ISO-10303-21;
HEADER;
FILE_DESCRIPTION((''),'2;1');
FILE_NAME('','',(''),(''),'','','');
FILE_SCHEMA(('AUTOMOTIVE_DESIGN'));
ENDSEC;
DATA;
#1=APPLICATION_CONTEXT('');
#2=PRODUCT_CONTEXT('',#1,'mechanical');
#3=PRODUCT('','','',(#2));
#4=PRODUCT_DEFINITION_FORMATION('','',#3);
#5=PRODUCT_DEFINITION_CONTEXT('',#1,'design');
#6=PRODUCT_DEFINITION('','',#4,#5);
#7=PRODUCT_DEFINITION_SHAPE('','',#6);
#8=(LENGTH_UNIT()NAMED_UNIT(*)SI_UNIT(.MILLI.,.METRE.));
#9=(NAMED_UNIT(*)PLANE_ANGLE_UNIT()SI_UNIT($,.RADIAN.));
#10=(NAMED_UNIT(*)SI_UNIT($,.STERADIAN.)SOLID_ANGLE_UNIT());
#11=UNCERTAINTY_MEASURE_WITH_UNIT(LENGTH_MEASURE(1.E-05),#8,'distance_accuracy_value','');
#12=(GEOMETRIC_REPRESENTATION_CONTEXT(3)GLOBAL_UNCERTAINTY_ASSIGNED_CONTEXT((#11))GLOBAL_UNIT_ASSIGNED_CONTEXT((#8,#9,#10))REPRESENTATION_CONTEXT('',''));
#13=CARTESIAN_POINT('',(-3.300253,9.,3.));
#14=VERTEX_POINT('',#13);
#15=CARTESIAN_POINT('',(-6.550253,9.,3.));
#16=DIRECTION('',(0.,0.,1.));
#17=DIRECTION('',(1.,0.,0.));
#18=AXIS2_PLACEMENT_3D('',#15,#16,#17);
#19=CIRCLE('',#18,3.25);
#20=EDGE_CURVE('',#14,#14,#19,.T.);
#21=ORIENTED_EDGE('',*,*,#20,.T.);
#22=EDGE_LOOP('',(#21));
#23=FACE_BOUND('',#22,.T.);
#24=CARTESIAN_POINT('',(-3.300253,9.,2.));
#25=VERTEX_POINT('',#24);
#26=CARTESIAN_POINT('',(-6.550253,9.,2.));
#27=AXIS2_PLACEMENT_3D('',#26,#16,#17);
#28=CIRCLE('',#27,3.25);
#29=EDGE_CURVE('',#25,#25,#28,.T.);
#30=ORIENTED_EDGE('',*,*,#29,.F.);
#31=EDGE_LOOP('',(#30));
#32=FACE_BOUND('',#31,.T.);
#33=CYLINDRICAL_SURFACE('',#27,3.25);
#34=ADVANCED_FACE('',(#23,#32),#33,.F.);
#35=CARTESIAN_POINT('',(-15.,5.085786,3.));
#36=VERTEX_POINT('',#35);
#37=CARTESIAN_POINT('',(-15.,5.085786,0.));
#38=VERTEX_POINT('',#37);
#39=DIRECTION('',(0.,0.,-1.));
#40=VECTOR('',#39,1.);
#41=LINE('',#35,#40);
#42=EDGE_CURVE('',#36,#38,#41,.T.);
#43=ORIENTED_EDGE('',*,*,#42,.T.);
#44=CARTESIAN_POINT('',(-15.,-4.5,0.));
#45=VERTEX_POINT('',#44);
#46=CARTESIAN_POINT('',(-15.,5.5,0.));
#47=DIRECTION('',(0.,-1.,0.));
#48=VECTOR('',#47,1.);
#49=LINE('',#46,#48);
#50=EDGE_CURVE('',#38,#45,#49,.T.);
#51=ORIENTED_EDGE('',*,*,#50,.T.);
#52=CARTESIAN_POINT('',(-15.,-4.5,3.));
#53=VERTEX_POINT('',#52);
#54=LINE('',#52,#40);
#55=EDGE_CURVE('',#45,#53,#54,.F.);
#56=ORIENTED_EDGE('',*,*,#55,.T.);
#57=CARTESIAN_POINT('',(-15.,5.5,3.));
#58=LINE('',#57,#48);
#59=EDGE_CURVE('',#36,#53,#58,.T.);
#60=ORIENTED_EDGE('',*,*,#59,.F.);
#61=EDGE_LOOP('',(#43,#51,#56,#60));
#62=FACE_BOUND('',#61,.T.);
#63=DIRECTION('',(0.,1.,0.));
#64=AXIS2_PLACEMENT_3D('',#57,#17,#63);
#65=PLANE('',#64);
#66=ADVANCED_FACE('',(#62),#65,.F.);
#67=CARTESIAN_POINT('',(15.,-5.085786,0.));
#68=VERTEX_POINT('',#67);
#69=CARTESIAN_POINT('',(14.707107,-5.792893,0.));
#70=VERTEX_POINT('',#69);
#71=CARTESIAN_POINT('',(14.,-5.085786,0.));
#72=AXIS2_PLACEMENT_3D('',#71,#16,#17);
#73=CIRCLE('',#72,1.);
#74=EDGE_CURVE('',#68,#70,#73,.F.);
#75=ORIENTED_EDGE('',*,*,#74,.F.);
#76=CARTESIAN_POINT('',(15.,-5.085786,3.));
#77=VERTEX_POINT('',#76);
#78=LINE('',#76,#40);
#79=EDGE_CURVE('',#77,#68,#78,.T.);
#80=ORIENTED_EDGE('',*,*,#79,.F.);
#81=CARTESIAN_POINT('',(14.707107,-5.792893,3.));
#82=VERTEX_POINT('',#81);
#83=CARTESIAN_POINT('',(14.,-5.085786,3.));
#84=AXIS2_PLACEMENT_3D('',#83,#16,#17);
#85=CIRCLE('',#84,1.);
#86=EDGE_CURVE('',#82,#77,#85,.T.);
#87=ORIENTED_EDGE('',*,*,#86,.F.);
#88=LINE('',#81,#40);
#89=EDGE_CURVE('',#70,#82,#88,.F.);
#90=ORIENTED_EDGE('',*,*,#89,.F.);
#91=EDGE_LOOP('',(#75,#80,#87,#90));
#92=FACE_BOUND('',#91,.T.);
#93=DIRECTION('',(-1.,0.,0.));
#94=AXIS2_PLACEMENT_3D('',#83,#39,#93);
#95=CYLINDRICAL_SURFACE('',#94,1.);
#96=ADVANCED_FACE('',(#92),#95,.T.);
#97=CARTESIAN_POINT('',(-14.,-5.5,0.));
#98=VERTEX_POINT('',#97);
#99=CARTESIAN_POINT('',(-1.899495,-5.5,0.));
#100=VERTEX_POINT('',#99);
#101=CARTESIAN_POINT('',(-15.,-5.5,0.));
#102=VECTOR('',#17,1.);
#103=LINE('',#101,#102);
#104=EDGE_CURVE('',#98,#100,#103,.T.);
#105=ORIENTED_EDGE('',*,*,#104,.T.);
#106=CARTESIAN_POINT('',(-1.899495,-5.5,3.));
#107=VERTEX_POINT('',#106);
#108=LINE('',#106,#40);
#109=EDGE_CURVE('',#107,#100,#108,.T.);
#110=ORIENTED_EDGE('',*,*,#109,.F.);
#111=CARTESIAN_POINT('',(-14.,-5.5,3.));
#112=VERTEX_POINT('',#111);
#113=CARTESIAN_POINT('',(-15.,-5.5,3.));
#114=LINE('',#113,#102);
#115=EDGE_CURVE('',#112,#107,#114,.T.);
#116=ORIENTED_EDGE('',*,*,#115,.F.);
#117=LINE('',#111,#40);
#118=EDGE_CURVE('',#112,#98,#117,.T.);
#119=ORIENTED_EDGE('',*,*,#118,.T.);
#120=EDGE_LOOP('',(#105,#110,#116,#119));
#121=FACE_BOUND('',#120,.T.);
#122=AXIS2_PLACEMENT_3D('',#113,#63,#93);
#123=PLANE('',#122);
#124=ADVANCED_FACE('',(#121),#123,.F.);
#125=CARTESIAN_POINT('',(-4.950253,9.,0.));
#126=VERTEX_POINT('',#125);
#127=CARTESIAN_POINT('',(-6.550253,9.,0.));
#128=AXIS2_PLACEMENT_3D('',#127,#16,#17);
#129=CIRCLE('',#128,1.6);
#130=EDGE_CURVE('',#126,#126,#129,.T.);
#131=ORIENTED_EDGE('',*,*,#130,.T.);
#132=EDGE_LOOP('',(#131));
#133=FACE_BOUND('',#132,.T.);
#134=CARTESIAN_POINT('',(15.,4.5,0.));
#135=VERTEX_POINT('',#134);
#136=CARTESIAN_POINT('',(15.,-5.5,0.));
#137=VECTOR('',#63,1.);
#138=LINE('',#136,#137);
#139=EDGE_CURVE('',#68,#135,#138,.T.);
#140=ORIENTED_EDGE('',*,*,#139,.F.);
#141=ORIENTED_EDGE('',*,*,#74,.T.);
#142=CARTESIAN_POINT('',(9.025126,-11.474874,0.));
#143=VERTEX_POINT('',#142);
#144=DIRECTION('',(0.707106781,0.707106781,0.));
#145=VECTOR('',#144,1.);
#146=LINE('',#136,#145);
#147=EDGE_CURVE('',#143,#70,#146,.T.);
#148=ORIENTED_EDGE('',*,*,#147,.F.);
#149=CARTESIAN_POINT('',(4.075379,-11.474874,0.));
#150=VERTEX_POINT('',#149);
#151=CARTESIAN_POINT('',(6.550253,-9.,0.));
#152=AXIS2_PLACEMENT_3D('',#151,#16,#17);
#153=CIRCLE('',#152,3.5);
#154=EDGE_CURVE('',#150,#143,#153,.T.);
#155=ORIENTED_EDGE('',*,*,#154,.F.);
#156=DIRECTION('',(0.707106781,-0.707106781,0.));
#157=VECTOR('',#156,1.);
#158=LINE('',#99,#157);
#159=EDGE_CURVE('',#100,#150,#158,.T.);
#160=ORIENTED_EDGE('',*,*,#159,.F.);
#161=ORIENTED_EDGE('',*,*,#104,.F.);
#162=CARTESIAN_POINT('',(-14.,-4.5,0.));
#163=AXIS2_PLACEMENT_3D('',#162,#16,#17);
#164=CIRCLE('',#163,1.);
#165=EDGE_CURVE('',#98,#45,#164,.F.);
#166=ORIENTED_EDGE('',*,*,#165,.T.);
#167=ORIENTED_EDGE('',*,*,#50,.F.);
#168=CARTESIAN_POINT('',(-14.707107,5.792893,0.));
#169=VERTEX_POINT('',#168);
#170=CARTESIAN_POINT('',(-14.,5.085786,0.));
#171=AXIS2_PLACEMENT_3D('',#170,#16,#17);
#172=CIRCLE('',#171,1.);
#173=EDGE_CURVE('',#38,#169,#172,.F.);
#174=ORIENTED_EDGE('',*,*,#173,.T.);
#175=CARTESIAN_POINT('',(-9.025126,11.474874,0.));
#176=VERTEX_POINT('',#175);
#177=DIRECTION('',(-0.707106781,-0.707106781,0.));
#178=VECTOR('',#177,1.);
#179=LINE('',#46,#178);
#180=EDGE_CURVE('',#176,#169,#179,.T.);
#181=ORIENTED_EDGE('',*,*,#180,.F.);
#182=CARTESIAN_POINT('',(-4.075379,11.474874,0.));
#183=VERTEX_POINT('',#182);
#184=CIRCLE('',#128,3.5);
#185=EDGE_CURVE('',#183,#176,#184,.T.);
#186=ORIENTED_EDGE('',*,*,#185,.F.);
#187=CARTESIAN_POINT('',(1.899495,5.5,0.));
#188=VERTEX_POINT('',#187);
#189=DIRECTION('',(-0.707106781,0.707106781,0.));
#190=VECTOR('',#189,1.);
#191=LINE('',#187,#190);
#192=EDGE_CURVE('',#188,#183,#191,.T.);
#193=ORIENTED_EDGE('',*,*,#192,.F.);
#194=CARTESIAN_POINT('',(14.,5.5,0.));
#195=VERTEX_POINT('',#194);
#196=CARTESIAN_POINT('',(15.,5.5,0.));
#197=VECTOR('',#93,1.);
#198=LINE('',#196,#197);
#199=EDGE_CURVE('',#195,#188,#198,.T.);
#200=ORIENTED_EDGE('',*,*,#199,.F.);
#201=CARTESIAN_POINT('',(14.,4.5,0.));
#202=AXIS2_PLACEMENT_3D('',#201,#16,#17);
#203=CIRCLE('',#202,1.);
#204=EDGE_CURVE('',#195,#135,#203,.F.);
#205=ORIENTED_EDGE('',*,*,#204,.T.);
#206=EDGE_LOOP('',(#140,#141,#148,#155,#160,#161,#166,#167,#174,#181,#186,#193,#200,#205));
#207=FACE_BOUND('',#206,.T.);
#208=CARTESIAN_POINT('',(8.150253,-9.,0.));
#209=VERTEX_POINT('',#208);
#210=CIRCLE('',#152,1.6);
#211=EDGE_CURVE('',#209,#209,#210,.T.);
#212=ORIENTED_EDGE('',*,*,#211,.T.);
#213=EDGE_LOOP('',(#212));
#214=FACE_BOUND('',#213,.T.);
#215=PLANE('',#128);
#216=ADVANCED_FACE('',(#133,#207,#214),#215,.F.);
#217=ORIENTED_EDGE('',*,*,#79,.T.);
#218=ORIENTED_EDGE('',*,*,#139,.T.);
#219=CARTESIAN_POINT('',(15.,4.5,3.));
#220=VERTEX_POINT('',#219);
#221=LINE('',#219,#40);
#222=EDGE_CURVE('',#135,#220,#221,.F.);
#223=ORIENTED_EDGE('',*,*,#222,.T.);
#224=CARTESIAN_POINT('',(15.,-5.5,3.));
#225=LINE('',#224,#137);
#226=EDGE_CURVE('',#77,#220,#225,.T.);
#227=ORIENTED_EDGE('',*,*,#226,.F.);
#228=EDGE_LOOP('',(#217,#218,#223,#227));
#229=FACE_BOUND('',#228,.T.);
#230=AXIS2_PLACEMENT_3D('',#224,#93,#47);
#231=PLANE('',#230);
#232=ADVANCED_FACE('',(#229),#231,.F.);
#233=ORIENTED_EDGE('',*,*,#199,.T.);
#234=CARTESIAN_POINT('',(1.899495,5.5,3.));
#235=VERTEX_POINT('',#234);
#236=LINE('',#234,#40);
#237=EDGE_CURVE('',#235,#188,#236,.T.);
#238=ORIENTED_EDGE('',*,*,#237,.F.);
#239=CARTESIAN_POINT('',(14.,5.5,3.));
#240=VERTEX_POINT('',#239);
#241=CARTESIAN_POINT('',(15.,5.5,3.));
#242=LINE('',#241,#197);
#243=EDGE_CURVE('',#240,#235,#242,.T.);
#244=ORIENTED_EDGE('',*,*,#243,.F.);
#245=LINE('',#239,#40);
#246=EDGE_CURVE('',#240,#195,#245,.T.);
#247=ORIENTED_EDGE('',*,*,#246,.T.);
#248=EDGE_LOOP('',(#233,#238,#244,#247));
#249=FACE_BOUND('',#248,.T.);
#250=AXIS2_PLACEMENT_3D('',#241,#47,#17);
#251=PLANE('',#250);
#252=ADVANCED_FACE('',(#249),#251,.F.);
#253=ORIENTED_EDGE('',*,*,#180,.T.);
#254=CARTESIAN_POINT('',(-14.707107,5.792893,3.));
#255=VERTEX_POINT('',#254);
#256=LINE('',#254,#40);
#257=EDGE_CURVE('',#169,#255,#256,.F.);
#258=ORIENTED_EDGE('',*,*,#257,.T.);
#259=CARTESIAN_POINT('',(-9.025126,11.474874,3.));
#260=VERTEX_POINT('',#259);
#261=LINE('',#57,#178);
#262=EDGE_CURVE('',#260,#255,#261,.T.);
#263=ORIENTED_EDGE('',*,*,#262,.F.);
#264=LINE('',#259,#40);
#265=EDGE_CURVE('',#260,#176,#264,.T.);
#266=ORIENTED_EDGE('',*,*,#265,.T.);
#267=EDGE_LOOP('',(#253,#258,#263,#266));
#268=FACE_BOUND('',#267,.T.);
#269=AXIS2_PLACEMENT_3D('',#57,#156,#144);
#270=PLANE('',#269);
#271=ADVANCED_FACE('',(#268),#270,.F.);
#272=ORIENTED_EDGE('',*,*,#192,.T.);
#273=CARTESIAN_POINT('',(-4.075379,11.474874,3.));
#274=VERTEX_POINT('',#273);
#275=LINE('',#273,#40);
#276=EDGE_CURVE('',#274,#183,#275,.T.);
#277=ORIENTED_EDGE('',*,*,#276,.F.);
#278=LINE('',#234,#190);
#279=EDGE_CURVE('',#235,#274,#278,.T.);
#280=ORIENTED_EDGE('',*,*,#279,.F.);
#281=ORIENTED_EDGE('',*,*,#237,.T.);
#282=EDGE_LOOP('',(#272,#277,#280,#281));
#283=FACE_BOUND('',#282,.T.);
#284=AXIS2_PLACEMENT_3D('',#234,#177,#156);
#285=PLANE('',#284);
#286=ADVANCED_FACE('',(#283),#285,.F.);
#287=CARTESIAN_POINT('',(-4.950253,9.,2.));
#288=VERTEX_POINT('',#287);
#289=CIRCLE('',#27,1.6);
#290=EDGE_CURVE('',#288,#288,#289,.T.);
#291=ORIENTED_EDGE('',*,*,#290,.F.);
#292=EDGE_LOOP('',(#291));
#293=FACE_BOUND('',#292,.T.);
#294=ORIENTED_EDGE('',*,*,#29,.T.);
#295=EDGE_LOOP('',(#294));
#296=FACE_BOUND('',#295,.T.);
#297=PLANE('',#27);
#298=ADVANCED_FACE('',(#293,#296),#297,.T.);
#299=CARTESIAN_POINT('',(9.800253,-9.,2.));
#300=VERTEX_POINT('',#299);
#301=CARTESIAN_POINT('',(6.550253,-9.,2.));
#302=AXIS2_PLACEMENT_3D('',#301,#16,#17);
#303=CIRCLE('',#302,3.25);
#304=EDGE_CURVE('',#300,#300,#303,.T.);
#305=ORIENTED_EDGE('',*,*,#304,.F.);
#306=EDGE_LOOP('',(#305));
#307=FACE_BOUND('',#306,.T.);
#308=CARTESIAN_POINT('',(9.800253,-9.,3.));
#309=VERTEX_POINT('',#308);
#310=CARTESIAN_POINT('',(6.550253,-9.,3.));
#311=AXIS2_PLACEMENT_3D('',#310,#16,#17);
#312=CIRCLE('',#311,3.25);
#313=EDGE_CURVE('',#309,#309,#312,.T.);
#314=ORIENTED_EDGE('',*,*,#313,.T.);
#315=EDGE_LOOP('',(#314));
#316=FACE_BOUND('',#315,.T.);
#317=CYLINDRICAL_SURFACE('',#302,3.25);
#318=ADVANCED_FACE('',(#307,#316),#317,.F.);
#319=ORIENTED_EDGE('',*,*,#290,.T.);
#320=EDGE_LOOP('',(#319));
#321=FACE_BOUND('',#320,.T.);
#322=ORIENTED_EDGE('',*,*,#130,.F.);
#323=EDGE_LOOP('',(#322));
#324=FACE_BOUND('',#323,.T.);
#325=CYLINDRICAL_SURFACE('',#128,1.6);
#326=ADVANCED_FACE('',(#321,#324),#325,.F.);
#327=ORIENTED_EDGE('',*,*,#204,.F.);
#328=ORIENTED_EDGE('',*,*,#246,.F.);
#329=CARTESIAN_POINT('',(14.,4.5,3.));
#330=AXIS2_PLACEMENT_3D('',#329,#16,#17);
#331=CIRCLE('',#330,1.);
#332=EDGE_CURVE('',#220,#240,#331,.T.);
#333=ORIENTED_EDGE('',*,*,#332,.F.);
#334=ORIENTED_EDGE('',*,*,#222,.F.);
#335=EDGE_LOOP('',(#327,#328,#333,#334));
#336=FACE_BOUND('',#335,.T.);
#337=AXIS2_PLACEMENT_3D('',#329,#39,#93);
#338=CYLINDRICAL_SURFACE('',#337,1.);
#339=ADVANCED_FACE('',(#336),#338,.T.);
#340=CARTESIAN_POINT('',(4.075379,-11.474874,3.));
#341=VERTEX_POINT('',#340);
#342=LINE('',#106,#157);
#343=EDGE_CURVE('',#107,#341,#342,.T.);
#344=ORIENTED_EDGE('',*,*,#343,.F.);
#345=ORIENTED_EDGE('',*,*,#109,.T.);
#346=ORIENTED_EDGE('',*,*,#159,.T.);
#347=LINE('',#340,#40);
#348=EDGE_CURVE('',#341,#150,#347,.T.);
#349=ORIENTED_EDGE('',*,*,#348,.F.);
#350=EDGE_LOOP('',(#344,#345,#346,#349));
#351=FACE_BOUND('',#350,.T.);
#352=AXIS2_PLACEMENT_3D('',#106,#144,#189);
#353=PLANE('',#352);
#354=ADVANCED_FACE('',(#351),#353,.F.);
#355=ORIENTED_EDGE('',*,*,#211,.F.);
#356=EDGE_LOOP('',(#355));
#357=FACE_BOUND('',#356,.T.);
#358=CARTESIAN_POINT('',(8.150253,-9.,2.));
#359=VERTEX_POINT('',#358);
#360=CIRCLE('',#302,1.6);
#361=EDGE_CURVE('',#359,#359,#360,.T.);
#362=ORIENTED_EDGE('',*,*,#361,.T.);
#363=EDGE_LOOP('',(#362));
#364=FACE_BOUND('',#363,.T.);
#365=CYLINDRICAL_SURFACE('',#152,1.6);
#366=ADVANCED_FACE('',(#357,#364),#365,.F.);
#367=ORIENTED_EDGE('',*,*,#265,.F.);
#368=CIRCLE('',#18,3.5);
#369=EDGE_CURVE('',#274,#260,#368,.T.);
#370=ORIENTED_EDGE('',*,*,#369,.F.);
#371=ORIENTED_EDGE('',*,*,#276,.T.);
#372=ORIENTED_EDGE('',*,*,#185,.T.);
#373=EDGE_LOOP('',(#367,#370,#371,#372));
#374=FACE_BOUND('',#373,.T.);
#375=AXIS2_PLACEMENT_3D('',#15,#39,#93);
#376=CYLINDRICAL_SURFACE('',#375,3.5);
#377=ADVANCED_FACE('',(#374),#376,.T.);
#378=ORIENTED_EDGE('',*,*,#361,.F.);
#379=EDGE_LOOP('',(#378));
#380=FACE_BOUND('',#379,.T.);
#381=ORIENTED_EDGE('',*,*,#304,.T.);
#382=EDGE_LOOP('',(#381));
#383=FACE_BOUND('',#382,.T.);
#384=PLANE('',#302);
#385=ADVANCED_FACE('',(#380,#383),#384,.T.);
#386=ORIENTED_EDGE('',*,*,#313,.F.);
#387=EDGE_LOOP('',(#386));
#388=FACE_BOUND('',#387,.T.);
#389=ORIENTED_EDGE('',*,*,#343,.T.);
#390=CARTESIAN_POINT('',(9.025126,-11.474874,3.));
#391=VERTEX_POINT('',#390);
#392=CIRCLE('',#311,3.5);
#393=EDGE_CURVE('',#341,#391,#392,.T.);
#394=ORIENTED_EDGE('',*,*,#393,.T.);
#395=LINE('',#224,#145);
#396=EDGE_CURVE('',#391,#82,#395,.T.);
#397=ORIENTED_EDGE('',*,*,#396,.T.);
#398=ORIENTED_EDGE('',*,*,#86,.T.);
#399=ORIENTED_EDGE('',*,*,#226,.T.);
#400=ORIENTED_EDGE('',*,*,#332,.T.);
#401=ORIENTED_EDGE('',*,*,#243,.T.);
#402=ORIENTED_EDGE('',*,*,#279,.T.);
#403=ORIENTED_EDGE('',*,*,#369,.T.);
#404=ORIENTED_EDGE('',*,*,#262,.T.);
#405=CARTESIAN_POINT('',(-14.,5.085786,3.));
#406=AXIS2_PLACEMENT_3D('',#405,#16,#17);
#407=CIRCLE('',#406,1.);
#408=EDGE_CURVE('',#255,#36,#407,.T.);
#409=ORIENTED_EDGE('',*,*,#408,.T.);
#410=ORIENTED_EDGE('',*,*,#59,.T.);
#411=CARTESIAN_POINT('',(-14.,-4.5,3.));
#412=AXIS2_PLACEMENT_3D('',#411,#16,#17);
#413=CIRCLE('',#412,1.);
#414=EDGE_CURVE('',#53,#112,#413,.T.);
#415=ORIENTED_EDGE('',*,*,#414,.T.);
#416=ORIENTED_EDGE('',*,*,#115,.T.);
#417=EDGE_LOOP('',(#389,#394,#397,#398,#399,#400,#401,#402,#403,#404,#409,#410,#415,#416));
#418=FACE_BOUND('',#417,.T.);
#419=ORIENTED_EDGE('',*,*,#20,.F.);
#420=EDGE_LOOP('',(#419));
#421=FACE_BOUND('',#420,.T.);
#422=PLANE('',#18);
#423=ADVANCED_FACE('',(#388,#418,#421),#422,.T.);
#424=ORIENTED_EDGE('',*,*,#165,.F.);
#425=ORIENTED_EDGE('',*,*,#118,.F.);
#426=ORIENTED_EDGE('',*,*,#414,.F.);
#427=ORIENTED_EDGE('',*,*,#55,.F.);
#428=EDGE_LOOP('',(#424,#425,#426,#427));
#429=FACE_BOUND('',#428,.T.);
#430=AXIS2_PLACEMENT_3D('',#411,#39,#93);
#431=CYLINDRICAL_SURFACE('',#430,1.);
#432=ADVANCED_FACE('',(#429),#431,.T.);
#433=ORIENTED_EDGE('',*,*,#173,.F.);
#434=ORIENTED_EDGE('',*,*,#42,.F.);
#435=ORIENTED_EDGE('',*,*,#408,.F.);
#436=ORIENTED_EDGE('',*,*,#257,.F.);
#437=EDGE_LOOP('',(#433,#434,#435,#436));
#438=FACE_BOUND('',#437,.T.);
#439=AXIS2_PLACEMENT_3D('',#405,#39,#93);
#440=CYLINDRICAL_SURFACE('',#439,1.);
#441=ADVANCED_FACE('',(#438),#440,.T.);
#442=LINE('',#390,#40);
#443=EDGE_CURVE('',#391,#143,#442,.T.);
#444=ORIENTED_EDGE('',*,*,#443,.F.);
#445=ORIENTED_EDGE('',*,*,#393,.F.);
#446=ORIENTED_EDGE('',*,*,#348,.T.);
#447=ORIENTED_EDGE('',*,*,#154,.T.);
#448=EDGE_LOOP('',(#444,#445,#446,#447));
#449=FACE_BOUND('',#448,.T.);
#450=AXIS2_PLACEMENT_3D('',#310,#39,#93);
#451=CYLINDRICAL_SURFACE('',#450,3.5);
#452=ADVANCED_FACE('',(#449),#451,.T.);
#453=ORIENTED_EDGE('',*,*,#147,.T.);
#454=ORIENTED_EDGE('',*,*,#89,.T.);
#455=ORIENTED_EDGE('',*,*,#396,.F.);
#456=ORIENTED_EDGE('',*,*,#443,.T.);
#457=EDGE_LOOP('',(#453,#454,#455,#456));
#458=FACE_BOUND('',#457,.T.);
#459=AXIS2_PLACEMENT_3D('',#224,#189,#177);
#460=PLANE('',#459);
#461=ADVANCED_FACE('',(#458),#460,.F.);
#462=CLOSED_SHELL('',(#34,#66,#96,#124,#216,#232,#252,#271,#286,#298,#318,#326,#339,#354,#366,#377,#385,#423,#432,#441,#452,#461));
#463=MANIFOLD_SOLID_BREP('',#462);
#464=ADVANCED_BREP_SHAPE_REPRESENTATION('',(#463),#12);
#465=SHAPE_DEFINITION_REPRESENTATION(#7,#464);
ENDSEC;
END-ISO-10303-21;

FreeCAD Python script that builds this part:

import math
import FreeCAD as App
import Part
import Sketcher
from FreeCAD import Vector
Q = App.Units.Quantity


def edges_at(feature, points):
    """Names of the edges that pass closest to the given points."""
    edges = feature.Shape.Edges
    near = lambda p: min(range(len(edges)), key=lambda i: edges[i].distToShape(Part.Vertex(*p))[0])
    return sorted({f"Edge{near(p) + 1}" for p in points})

doc = App.newDocument("Part")
body = doc.addObject("PartDesign::Body", "Body")

# Sketch on XY plane
sketch1 = doc.addObject("Sketcher::SketchObject", "Sketch")
body.addObject(sketch1)
sketch1.AttachmentSupport = (doc.XY_Plane, [""])
sketch1.MapMode = "FlatFace"
sketch1.addGeometry([
    Part.LineSegment(Vector(15, 5.5, 0), Vector(1.899495, 5.5, 0)),  # 0
    Part.LineSegment(Vector(1.899495, 5.5, 0), Vector(-4.075379, 11.474874, 0)),  # 1
    Part.ArcOfCircle(Part.Circle(Vector(-6.550253, 9, 0), Vector(0, 0, 1), 3.5), math.radians(45), math.radians(135)),  # 2
    Part.LineSegment(Vector(-9.025126, 11.474874, 0), Vector(-15, 5.5, 0)),  # 3
    Part.LineSegment(Vector(-15, 5.5, 0), Vector(-15, -5.5, 0)),  # 4
    Part.LineSegment(Vector(-15, -5.5, 0), Vector(-1.899495, -5.5, 0)),  # 5
    Part.LineSegment(Vector(-1.899495, -5.5, 0), Vector(4.075379, -11.474874, 0)),  # 6
    Part.ArcOfCircle(Part.Circle(Vector(6.550253, -9, 0), Vector(0, 0, 1), 3.5), math.radians(-135), math.radians(-45)),  # 7
    Part.LineSegment(Vector(9.025126, -11.474874, 0), Vector(15, -5.5, 0)),  # 8
    Part.LineSegment(Vector(15, -5.5, 0), Vector(15, 5.5, 0)),  # 9
], False)
sketch1.addConstraint([
    Sketcher.Constraint("Coincident", 0, 2, 1, 1),
    Sketcher.Constraint("Tangent", 1, 2, 2, 1),
    Sketcher.Constraint("Tangent", 2, 2, 3, 1),
    Sketcher.Constraint("Coincident", 3, 2, 4, 1),
    Sketcher.Constraint("Coincident", 4, 2, 5, 1),
    Sketcher.Constraint("Coincident", 5, 2, 6, 1),
    Sketcher.Constraint("Tangent", 6, 2, 7, 1),
    Sketcher.Constraint("Tangent", 7, 2, 8, 1),
    Sketcher.Constraint("Coincident", 8, 2, 9, 1),
    Sketcher.Constraint("Coincident", 9, 2, 0, 1),
    Sketcher.Constraint("Horizontal", 0),
    Sketcher.Constraint("Vertical", 4),
    Sketcher.Constraint("Horizontal", 5),
    Sketcher.Constraint("Vertical", 9),
    Sketcher.Constraint("Equal", 2, 7),
    Sketcher.Constraint("Symmetric", 2, 3, 7, 3, -1, 1),
    Sketcher.Constraint("Symmetric", 0, 2, 5, 2, -1, 1),
    Sketcher.Constraint("Symmetric", 3, 2, 8, 2, -1, 1),
    Sketcher.Constraint("Perpendicular", 1, 3),
    Sketcher.Constraint("Horizontal", 1, 2, 2, 2),
    Sketcher.Constraint("Horizontal", 0, 2, 3, 2),
    Sketcher.Constraint("Radius", 2, Q("3.5 mm")),
    Sketcher.Constraint("DistanceY", 4, 2, 4, 1, Q("11 mm")),
    Sketcher.Constraint("DistanceY", -1, 1, 2, 3, Q("9 mm")),
    Sketcher.Constraint("DistanceX", 3, 2, -1, 1, Q("15 mm")),
])
pad1 = doc.addObject("PartDesign::Pad", "Pad")
body.addObject(pad1)
pad1.Profile = sketch1
pad1.Length = 3

# Sketch on XY plane
sketch2 = doc.addObject("Sketcher::SketchObject", "Sketch001")
body.addObject(sketch2)
sketch2.AttachmentSupport = (doc.XY_Plane, [""])
sketch2.MapMode = "FlatFace"
sketch2.AttachmentOffset = App.Placement(Vector(0, 0, 3), App.Rotation())
sketch2.addGeometry([
    Part.Circle(Vector(-6.550253, 9, 0), Vector(0, 0, 1), 3.25),
    Part.Circle(Vector(6.550253, -9, 0), Vector(0, 0, 1), 3.25),
], False)
sketch2.addConstraint([
    Sketcher.Constraint("Equal", 0, 1),
    Sketcher.Constraint("Symmetric", 0, 3, 1, 3, -1, 1),
    Sketcher.Constraint("Diameter", 0, Q("6.5 mm")),
    Sketcher.Constraint("DistanceY", -1, 1, 0, 3, Q("9 mm")),
    Sketcher.Constraint("DistanceX", 0, 3, -1, 1, Q("6.550253 mm")),
])
pocket1 = doc.addObject("PartDesign::Pocket", "Pocket")
body.addObject(pocket1)
pocket1.Profile = sketch2
pocket1.Length = 1
doc.recompute()

fillet = doc.addObject("PartDesign::Fillet", "Fillet")
body.addObject(fillet)
fillet.Base = (pocket1, edges_at(pocket1, [
    (15, -5.5, 1.5),
    (-15, -5.5, 1.5),
    (-15, 5.5, 1.5),
    (15, 5.5, 1.5),
]))
fillet.Radius = 1

# Sketch on XY plane
sketch3 = doc.addObject("Sketcher::SketchObject", "Sketch002")
body.addObject(sketch3)
sketch3.AttachmentSupport = (doc.XY_Plane, [""])
sketch3.MapMode = "FlatFace"
sketch3.AttachmentOffset = App.Placement(Vector(0, 0, 3), App.Rotation())
sketch3.addGeometry([
    Part.Circle(Vector(-6.550253, 9, 0), Vector(0, 0, 1), 1.6),
    Part.Circle(Vector(6.550253, -9, 0), Vector(0, 0, 1), 1.6),
], False)
sketch3.addConstraint([
    Sketcher.Constraint("Equal", 0, 1),
    Sketcher.Constraint("Symmetric", 0, 3, 1, 3, -1, 1),
    Sketcher.Constraint("Diameter", 0, Q("3.2 mm")),
    Sketcher.Constraint("DistanceY", -1, 1, 0, 3, Q("9 mm")),
    Sketcher.Constraint("DistanceX", 0, 3, -1, 1, Q("6.550253 mm")),
])
pocket2 = doc.addObject("PartDesign::Pocket", "Pocket001")
body.addObject(pocket2)
pocket2.Profile = sketch3
pocket2.Type = "ThroughAll"

doc.recompute()
